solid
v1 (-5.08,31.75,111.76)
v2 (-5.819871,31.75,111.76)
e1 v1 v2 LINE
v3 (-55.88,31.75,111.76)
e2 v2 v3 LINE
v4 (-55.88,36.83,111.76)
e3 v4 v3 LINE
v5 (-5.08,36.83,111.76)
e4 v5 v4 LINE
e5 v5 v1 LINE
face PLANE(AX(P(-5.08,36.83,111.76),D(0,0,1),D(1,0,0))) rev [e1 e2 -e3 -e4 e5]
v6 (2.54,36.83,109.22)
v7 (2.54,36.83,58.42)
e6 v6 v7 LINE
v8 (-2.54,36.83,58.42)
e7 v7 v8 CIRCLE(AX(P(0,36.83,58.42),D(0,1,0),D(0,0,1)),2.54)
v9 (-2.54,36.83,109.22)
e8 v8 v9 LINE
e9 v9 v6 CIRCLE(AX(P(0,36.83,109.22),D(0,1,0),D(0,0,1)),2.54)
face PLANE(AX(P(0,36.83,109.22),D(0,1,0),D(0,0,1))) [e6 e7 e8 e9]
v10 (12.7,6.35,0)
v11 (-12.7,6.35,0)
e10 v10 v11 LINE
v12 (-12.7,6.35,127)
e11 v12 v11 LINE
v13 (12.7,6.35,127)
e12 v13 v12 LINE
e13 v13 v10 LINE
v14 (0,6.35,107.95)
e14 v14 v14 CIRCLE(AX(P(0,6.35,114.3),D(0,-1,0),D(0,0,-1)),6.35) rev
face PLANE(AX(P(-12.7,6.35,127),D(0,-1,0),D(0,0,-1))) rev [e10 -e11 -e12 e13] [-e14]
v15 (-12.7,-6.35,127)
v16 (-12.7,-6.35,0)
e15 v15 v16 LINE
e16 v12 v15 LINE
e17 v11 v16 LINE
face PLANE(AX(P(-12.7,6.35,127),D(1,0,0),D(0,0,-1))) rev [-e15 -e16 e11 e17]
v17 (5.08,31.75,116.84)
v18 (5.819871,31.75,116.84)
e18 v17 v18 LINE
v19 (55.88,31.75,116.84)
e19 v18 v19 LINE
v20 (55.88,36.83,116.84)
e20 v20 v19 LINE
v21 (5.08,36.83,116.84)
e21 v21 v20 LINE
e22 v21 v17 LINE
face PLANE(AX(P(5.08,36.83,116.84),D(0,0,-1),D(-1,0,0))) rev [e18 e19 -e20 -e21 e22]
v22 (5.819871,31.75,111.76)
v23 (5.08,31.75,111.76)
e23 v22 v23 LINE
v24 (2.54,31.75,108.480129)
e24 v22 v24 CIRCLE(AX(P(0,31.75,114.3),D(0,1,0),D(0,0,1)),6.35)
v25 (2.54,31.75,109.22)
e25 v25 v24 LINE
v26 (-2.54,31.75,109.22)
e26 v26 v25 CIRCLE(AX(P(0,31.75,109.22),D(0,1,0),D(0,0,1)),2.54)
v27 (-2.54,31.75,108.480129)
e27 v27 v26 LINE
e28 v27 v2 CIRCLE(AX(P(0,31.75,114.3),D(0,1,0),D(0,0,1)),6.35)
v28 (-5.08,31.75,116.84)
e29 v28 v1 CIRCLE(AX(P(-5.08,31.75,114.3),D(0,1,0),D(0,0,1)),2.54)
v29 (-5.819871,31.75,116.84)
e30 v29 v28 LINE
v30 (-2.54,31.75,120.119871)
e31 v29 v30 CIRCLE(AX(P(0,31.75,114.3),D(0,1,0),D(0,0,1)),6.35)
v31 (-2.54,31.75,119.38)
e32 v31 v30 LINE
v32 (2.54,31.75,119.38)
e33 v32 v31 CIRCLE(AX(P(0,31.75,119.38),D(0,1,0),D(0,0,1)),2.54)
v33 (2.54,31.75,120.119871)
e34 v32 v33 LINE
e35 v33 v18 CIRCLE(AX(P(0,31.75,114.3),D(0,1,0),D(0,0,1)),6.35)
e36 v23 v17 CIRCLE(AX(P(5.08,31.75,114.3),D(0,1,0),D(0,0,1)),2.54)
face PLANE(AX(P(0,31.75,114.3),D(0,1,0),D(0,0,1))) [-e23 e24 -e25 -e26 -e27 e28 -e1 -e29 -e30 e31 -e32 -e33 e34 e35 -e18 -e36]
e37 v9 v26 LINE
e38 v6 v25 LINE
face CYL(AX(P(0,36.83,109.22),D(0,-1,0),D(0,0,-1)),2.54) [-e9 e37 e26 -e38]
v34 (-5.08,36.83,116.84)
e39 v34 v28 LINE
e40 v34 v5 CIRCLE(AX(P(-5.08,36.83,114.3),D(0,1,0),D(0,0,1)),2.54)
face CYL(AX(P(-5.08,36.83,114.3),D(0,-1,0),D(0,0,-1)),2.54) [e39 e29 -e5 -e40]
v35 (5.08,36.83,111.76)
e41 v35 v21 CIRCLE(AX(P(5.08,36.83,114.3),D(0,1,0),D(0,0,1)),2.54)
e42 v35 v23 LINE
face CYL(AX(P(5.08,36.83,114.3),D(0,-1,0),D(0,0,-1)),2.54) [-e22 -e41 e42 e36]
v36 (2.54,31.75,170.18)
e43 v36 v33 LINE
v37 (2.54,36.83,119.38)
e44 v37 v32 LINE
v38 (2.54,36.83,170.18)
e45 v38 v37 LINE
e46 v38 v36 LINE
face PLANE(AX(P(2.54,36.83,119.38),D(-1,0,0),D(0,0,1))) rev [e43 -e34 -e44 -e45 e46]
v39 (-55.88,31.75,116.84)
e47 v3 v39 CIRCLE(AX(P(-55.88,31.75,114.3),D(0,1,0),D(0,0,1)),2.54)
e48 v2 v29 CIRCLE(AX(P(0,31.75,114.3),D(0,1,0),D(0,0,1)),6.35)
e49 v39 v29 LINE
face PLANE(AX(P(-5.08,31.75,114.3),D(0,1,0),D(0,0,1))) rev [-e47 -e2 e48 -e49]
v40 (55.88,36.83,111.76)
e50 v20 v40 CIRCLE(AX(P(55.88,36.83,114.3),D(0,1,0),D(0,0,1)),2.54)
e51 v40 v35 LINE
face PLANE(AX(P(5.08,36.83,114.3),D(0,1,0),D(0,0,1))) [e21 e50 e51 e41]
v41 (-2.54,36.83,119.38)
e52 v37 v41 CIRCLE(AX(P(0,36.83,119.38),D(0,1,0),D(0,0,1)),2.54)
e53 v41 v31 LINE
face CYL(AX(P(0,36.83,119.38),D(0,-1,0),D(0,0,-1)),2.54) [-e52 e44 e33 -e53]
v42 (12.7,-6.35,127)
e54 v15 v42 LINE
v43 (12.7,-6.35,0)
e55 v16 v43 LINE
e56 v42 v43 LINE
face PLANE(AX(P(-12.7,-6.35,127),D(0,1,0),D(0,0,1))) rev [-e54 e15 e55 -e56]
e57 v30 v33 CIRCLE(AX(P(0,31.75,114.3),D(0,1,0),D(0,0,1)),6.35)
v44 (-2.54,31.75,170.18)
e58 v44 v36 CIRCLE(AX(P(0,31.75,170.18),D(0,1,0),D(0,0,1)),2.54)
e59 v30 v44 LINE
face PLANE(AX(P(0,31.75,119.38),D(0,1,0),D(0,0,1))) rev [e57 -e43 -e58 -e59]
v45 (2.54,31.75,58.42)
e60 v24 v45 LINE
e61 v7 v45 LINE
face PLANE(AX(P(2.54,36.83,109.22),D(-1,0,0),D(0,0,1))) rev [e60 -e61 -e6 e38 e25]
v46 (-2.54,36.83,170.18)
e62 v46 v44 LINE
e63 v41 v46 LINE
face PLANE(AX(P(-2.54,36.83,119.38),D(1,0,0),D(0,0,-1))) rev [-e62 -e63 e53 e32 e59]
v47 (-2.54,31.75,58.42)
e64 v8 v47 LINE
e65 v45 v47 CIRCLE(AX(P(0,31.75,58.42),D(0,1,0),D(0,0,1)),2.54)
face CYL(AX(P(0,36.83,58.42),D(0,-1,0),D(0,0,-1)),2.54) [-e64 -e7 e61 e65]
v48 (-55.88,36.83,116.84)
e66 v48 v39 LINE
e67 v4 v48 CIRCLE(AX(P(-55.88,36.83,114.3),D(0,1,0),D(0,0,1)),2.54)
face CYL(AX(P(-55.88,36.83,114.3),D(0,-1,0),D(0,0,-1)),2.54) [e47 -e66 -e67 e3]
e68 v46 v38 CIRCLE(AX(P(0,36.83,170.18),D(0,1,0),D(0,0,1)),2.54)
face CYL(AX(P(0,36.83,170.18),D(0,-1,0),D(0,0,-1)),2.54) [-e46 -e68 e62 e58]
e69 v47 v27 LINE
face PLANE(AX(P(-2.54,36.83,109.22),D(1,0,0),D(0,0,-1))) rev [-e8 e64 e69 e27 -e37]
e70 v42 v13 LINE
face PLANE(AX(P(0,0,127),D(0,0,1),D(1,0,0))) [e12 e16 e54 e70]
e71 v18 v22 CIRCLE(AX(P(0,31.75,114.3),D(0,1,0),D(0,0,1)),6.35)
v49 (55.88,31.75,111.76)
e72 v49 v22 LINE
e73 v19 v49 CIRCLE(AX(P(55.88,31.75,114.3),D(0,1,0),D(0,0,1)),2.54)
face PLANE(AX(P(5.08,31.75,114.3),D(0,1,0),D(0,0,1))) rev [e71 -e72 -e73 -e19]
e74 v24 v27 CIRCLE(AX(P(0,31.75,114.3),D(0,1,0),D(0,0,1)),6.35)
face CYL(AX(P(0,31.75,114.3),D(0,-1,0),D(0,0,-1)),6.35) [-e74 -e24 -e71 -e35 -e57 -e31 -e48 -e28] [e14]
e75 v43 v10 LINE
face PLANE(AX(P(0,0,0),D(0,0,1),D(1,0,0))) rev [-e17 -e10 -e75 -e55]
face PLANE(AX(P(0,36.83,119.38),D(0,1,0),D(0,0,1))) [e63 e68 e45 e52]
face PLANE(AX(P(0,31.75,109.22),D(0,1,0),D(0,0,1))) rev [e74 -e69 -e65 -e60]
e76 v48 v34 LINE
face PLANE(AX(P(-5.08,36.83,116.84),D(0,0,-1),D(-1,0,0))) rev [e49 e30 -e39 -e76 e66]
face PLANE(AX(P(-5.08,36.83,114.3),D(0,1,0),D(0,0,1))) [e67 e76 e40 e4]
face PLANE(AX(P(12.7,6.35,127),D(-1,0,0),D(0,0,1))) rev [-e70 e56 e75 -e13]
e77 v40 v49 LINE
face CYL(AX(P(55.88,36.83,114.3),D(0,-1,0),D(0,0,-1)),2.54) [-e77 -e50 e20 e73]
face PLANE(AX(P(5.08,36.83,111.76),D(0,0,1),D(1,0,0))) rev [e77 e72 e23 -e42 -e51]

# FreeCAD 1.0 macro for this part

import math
import FreeCAD as App
import Part
import Sketcher
from FreeCAD import Vector
Q = App.Units.Quantity

doc = App.newDocument("Part")
body = doc.addObject("PartDesign::Body", "Body")

# Sketch on XY plane
sketch1 = body.newObject("Sketcher::SketchObject", "Sketch")
sketch1.AttachmentSupport = (doc.getObject("XY_Plane"), [""])
sketch1.MapMode = "FlatFace"
sketch1.addGeometry(Part.LineSegment(Vector(-13, 6, 0), Vector(-13, -6, 0)), False)
sketch1.addGeometry(Part.LineSegment(Vector(-13, -6, 0), Vector(13, -6, 0)), False)
sketch1.addGeometry(Part.LineSegment(Vector(13, -6, 0), Vector(13, 6, 0)), False)
sketch1.addGeometry(Part.LineSegment(Vector(13, 6, 0), Vector(-13, 6, 0)), False)
sketch1.addConstraint(Sketcher.Constraint("Coincident", 0, 2, 1, 1))
sketch1.addConstraint(Sketcher.Constraint("Coincident", 1, 2, 2, 1))
sketch1.addConstraint(Sketcher.Constraint("Coincident", 2, 2, 3, 1))
sketch1.addConstraint(Sketcher.Constraint("Coincident", 3, 2, 0, 1))
sketch1.addConstraint(Sketcher.Constraint("Vertical", 0))
sketch1.addConstraint(Sketcher.Constraint("Horizontal", 1))
sketch1.addConstraint(Sketcher.Constraint("Vertical", 2))
sketch1.addConstraint(Sketcher.Constraint("Horizontal", 3))
sketch1.addConstraint(Sketcher.Constraint("Symmetric", 0, 2, 2, 2, -1, 1))
sketch1.addConstraint(Sketcher.Constraint("DistanceX", 1, 1, 1, 2, Q("1 in")))
sketch1.addConstraint(Sketcher.Constraint("DistanceY", 0, 2, 0, 1, Q("0.5 in")))
pad1 = body.newObject("PartDesign::Pad", "Pad")
pad1.Profile = sketch1
pad1.Length = Q("5 in")

# Sketch on XZ plane
sketch2 = body.newObject("Sketcher::SketchObject", "Sketch001")
sketch2.AttachmentSupport = (doc.getObject("XZ_Plane"), [""])
sketch2.MapMode = "FlatFace"
sketch2.AttachmentOffset = App.Placement(Vector(0, 0, -0.25 * 25.4), App.Rotation())
sketch2.addGeometry(Part.Circle(Vector(0, 114, 0), Vector(0, 0, 1), 6), False)
sketch2.addConstraint(Sketcher.Constraint("PointOnObject", 0, 3, -2))
sketch2.addConstraint(Sketcher.Constraint("Diameter", 0, Q("0.5 in")))
sketch2.addConstraint(Sketcher.Constraint("DistanceY", -1, 1, 0, 3, Q("4.5 in")))
pad2 = body.newObject("PartDesign::Pad", "Pad001")
pad2.Profile = sketch2
pad2.Length = Q("1 in")
pad2.Reversed = True

# Sketch on XZ plane
sketch3 = body.newObject("Sketcher::SketchObject", "Sketch002")
sketch3.AttachmentSupport = (doc.getObject("XZ_Plane"), [""])
sketch3.MapMode = "FlatFace"
sketch3.AttachmentOffset = App.Placement(Vector(0, 0, -1.25 * 25.4), App.Rotation())
sketch3.addGeometry(Part.LineSegment(Vector(55.9, 111.8, 0), Vector(5.1, 111.8, 0)), False)
sketch3.addGeometry(Part.ArcOfCircle(Part.Circle(Vector(5.1, 114.3, 0), Vector(0, 0, 1), 2.5), math.radians(90), math.radians(270)), False)
sketch3.addGeometry(Part.LineSegment(Vector(5.1, 116.8, 0), Vector(55.9, 116.8, 0)), False)
sketch3.addGeometry(Part.ArcOfCircle(Part.Circle(Vector(55.9, 114.3, 0), Vector(0, 0, 1), 2.5), math.radians(-90), math.radians(90)), False)
sketch3.addGeometry(Part.LineSegment(Vector(-2.5, 119.4, 0), Vector(-2.5, 170.2, 0)), False)
sketch3.addGeometry(Part.ArcOfCircle(Part.Circle(Vector(0, 170.2, 0), Vector(0, 0, 1), 2.5), math.radians(0), math.radians(180)), False)
sketch3.addGeometry(Part.LineSegment(Vector(2.5, 170.2, 0), Vector(2.5, 119.4, 0)), False)
sketch3.addGeometry(Part.ArcOfCircle(Part.Circle(Vector(0, 119.4, 0), Vector(0, 0, 1), 2.5), math.radians(180), math.radians(360)), False)
sketch3.addGeometry(Part.LineSegment(Vector(-5.1, 111.8, 0), Vector(-55.9, 111.8, 0)), False)
sketch3.addGeometry(Part.ArcOfCircle(Part.Circle(Vector(-55.9, 114.3, 0), Vector(0, 0, 1), 2.5), math.radians(90), math.radians(270)), False)
sketch3.addGeometry(Part.LineSegment(Vector(-55.9, 116.8, 0), Vector(-5.1, 116.8, 0)), False)
sketch3.addGeometry(Part.ArcOfCircle(Part.Circle(Vector(-5.1, 114.3, 0), Vector(0, 0, 1), 2.5), math.radians(-90), math.radians(90)), False)
sketch3.addGeometry(Part.LineSegment(Vector(2.5, 109.2, 0), Vector(2.5, 58.4, 0)), False)
sketch3.addGeometry(Part.ArcOfCircle(Part.Circle(Vector(0, 58.4, 0), Vector(0, 0, 1), 2.5), math.radians(180), math.radians(360)), False)
sketch3.addGeometry(Part.LineSegment(Vector(-2.5, 58.4, 0), Vector(-2.5, 109.2, 0)), False)
sketch3.addGeometry(Part.ArcOfCircle(Part.Circle(Vector(0, 109.2, 0), Vector(0, 0, 1), 2.5), math.radians(0), math.radians(180)), False)
sketch3.addConstraint(Sketcher.Constraint("Tangent", 0, 2, 1, 2))
sketch3.addConstraint(Sketcher.Constraint("Tangent", 1, 1, 2, 1))
sketch3.addConstraint(Sketcher.Constraint("Tangent", 2, 2, 3, 2))
sketch3.addConstraint(Sketcher.Constraint("Tangent", 3, 1, 0, 1))
sketch3.addConstraint(Sketcher.Constraint("Tangent", 4, 2, 5, 2))
sketch3.addConstraint(Sketcher.Constraint("Tangent", 5, 1, 6, 1))
sketch3.addConstraint(Sketcher.Constraint("Tangent", 6, 2, 7, 2))
sketch3.addConstraint(Sketcher.Constraint("Tangent", 7, 1, 4, 1))
sketch3.addConstraint(Sketcher.Constraint("Tangent", 8, 2, 9, 2))
sketch3.addConstraint(Sketcher.Constraint("Tangent", 9, 1, 10, 1))
sketch3.addConstraint(Sketcher.Constraint("Tangent", 10, 2, 11, 2))
sketch3.addConstraint(Sketcher.Constraint("Tangent", 11, 1, 8, 1))
sketch3.addConstraint(Sketcher.Constraint("Tangent", 12, 2, 13, 2))
sketch3.addConstraint(Sketcher.Constraint("Tangent", 13, 1, 14, 1))
sketch3.addConstraint(Sketcher.Constraint("Tangent", 14, 2, 15, 2))
sketch3.addConstraint(Sketcher.Constraint("Tangent", 15, 1, 12, 1))
sketch3.addConstraint(Sketcher.Constraint("Horizontal", 0))
sketch3.addConstraint(Sketcher.Constraint("Horizontal", 2))
sketch3.addConstraint(Sketcher.Constraint("Vertical", 4))
sketch3.addConstraint(Sketcher.Constraint("Vertical", 6))
sketch3.addConstraint(Sketcher.Constraint("Horizontal", 8))
sketch3.addConstraint(Sketcher.Constraint("Horizontal", 10))
sketch3.addConstraint(Sketcher.Constraint("Vertical", 12))
sketch3.addConstraint(Sketcher.Constraint("Vertical", 14))
sketch3.addConstraint(Sketcher.Constraint("Equal", 3, 5))
sketch3.addConstraint(Sketcher.Constraint("Equal", 7, 9))
sketch3.addConstraint(Sketcher.Constraint("Equal", 11, 13))
sketch3.addConstraint(Sketcher.Constraint("Symmetric", 3, 3, 9, 3, -2))
sketch3.addConstraint(Sketcher.Constraint("PointOnObject", 5, 3, -2))
sketch3.addConstraint(Sketcher.Constraint("PointOnObject", 13, 3, -2))
sketch3.addConstraint(Sketcher.Constraint("Equal", 2, 8))
sketch3.addConstraint(Sketcher.Constraint("Equal", 10, 4))
sketch3.addConstraint(Sketcher.Constraint("Equal", 6, 12))
sketch3.addConstraint(Sketcher.Constraint("Radius", 1, Q("0.1 in")))
sketch3.addConstraint(Sketcher.Constraint("DistanceX", 0, 2, 0, 1, Q("2 in")))
sketch3.addConstraint(Sketcher.Constraint("DistanceX", -1, 1, 1, 3, Q("0.2 in")))
sketch3.addConstraint(Sketcher.Constraint("DistanceY", -1, 1, 1, 3, Q("4.5 in")))
sketch3.addConstraint(Sketcher.Constraint("DistanceY", -1, 1, 5, 3, Q("6.7 in")))
sketch3.addConstraint(Sketcher.Constraint("DistanceY", -1, 1, 13, 3, Q("2.3 in")))
pad3 = body.newObject("PartDesign::Pad", "Pad002")
pad3.Profile = sketch3
pad3.Length = Q("0.2 in")
pad3.Reversed = True

doc.recompute()
